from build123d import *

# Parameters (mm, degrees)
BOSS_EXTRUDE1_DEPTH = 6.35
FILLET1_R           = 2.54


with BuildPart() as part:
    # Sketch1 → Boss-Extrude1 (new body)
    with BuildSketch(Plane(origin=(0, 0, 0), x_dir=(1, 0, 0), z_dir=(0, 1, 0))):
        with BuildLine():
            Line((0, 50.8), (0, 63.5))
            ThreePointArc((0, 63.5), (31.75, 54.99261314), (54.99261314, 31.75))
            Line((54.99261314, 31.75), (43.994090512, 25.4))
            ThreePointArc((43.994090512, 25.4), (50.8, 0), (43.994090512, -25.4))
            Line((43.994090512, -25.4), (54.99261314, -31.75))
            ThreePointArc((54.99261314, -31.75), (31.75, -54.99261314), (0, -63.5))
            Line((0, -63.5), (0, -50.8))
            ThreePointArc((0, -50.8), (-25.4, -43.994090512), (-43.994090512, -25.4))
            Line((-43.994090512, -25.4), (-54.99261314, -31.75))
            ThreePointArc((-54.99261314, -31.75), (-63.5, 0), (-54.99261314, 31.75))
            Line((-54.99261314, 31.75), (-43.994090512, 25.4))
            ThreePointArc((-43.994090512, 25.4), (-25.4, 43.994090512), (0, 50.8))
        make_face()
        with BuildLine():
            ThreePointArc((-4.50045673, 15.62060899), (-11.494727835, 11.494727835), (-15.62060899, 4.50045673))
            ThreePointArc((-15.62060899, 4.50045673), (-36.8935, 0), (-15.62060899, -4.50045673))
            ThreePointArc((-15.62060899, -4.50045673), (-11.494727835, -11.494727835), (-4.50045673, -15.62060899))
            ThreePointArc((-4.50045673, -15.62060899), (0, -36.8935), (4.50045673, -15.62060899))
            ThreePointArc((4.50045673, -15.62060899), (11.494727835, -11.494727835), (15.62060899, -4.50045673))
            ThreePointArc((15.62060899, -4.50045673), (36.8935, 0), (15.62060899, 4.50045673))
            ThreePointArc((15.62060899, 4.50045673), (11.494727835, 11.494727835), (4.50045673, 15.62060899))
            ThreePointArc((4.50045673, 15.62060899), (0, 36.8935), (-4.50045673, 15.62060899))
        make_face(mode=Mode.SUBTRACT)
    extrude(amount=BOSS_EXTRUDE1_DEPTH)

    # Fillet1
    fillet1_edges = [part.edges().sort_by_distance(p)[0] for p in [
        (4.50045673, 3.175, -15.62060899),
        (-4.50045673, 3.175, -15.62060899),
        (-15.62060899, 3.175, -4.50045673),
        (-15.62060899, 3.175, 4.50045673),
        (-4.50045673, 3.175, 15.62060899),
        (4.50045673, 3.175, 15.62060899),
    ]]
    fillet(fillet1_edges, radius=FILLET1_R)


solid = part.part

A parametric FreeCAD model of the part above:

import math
import FreeCAD as App
import Part
import Sketcher

V = App.Vector
Q = App.Units.Quantity


def edges_at(feature, points):
    """Names of the edges that pass closest to the given points."""
    edges = feature.Shape.Edges
    near = lambda p: min(range(len(edges)), key=lambda i: edges[i].distToShape(Part.Vertex(*p))[0])
    return sorted({f"Edge{near(p) + 1}" for p in points})

doc = App.newDocument("Part")
body = doc.addObject("PartDesign::Body", "Body")

sketch1 = body.newObject("Sketcher::SketchObject", "Sketch")
sketch1.AttachmentSupport = (doc.getObject("XZ_Plane"), [""])
sketch1.MapMode = "FlatFace"
sketch1.addGeometry([
    Part.LineSegment(V(0, -64, 0), V(0, -51, 0)),
    Part.ArcOfCircle(Part.Circle(V(0, 0, 0), V(0, 0, 1), 51), math.radians(-150), math.radians(-90)),
    Part.LineSegment(V(-44, -25, 0), V(-55, -32, 0)),
    Part.ArcOfCircle(Part.Circle(V(0, 0, 0), V(0, 0, 1), 63), math.radians(150), math.radians(210)),
    Part.LineSegment(V(-55, 32, 0), V(-44, 25, 0)),
    Part.ArcOfCircle(Part.Circle(V(0, 0, 0), V(0, 0, 1), 51), math.radians(90), math.radians(150)),
    Part.LineSegment(V(0, 51, 0), V(0, 64, 0)),
    Part.ArcOfCircle(Part.Circle(V(0, 0, 0), V(0, 0, 1), 64), math.radians(30), math.radians(90)),
    Part.LineSegment(V(55, 32, 0), V(44, 25, 0)),
    Part.ArcOfCircle(Part.Circle(V(0, 0, 0), V(0, 0, 1), 51), math.radians(-30), math.radians(30)),
    Part.LineSegment(V(44, -25, 0), V(55, -32, 0)),
    Part.ArcOfCircle(Part.Circle(V(0, 0, 0), V(0, 0, 1), 64), math.radians(-90), math.radians(-30)),
    Part.ArcOfCircle(Part.Circle(V(0, -26, 0), V(0, 0, 1), 11), math.radians(114), math.radians(426)),
    Part.ArcOfCircle(Part.Circle(V(0, 0, 0), V(0, 0, 1), 16), math.radians(-74), math.radians(-16)),
    Part.ArcOfCircle(Part.Circle(V(26, 0, 0), V(0, 0, 1), 11), math.radians(-156), math.radians(156)),
    Part.ArcOfCircle(Part.Circle(V(0, 0, 0), V(0, 0, 1), 16), math.radians(16), math.radians(74)),
    Part.ArcOfCircle(Part.Circle(V(0, 26, 0), V(0, 0, 1), 11), math.radians(-66), math.radians(246)),
    Part.ArcOfCircle(Part.Circle(V(0, 0, 0), V(0, 0, 1), 16), math.radians(106), math.radians(164)),
    Part.ArcOfCircle(Part.Circle(V(-26, 0, 0), V(0, 0, 1), 11), math.radians(24), math.radians(336)),
    Part.ArcOfCircle(Part.Circle(V(0, 0, 0), V(0, 0, 1), 16), math.radians(-164), math.radians(-106)),
], False)
sketch1.addConstraint([
    Sketcher.Constraint("Coincident", 0, 2, 1, 2),
    Sketcher.Constraint("Coincident", 1, 1, 2, 1),
    Sketcher.Constraint("Coincident", 2, 2, 3, 2),
    Sketcher.Constraint("Coincident", 3, 1, 4, 1),
    Sketcher.Constraint("Coincident", 4, 2, 5, 2),
    Sketcher.Constraint("Coincident", 5, 1, 6, 1),
    Sketcher.Constraint("Coincident", 6, 2, 7, 2),
    Sketcher.Constraint("Coincident", 7, 1, 8, 1),
    Sketcher.Constraint("Coincident", 8, 2, 9, 2),
    Sketcher.Constraint("Coincident", 9, 1, 10, 1),
    Sketcher.Constraint("Coincident", 10, 2, 11, 2),
    Sketcher.Constraint("Coincident", 11, 1, 0, 1),
    Sketcher.Constraint("Coincident", 12, 2, 13, 1),
    Sketcher.Constraint("Coincident", 13, 2, 14, 1),
    Sketcher.Constraint("Coincident", 14, 2, 15, 1),
    Sketcher.Constraint("Coincident", 15, 2, 16, 1),
    Sketcher.Constraint("Coincident", 16, 2, 17, 1),
    Sketcher.Constraint("Coincident", 17, 2, 18, 1),
    Sketcher.Constraint("Coincident", 18, 2, 19, 1),
    Sketcher.Constraint("Coincident", 19, 2, 12, 1),
    Sketcher.Constraint("Vertical", 0),
    Sketcher.Constraint("Vertical", 6),
    Sketcher.Constraint("Coincident", 1, 3, -1, 1),
    Sketcher.Constraint("Coincident", 3, 3, -1, 1),
    Sketcher.Constraint("Coincident", 5, 3, -1, 1),
    Sketcher.Constraint("Coincident", 7, 3, -1, 1),
    Sketcher.Constraint("Coincident", 9, 3, -1, 1),
    Sketcher.Constraint("Coincident", 11, 3, -1, 1),
    Sketcher.Constraint("Coincident", 13, 3, -1, 1),
    Sketcher.Constraint("Coincident", 15, 3, -1, 1),
    Sketcher.Constraint("Coincident", 17, 3, -1, 1),
    Sketcher.Constraint("Coincident", 19, 3, -1, 1),
    Sketcher.Constraint("Equal", 1, 5),
    Sketcher.Constraint("Equal", 3, 7),
    Sketcher.Constraint("Equal", 5, 9),
    Sketcher.Constraint("Equal", 7, 11),
    Sketcher.Constraint("Equal", 12, 14),
    Sketcher.Constraint("Equal", 13, 15),
    Sketcher.Constraint("Equal", 14, 16),
    Sketcher.Constraint("Equal", 15, 17),
    Sketcher.Constraint("Equal", 16, 18),
    Sketcher.Constraint("Equal", 17, 19),
    Sketcher.Constraint("Symmetric", 12, 3, 16, 3, -1, 1),
    Sketcher.Constraint("Symmetric", 14, 3, 18, 3, -1, 1),
    Sketcher.Constraint("PointOnObject", 12, 3, -2),
    Sketcher.Constraint("PointOnObject", 14, 3, -1),
    Sketcher.Constraint("PointOnObject", 0, 2, -2),
    Sketcher.Constraint("PointOnObject", 5, 1, -2),
    Sketcher.Constraint("Parallel", 2, 8),
    Sketcher.Constraint("Parallel", 4, 10),
    Sketcher.Constraint("Horizontal", 3, 1, 7, 1),
    Sketcher.Constraint("Horizontal", 4, 2, 8, 2),
    Sketcher.Constraint("Horizontal", 1, 1, 9, 1),
    Sketcher.Constraint("Vertical", 2, 2, 3, 1),
    Sketcher.Constraint("Radius", 1, Q("2 in")),
    Sketcher.Constraint("Radius", 3, Q("2.5 in")),
    Sketcher.Constraint("Radius", 13, Q("0.64 in")),
    Sketcher.Constraint("DistanceY", 1, 1, -1, 1, Q("1 in")),
    Sketcher.Constraint("Angle", 2, Q("-150 deg")),
    Sketcher.Constraint("Radius", 12, Q("0.4375 in")),
    Sketcher.Constraint("DistanceY", 12, 3, -1, 1, Q("1.015 in")),
    Sketcher.Constraint("DistanceX", -1, 1, 14, 3, Q("1.015 in")),
])
pad1 = body.newObject("PartDesign::Pad", "Pad")
pad1.Profile = sketch1
pad1.Length = Q("0.25 in")
pad1.Reversed = True
doc.recompute()

fillet = body.newObject("PartDesign::Fillet", "Fillet")
fillet.Base = (pad1, edges_at(pad1, [
    (4.5, 3.175, -15.621),
    (-4.5, 3.175, -15.621),
    (-15.621, 3.175, -4.5),
    (-15.621, 3.175, 4.5),
    (-4.5, 3.175, 15.621),
    (4.5, 3.175, 15.621),
]))
fillet.Radius = Q("0.1 in")

doc.recompute()
